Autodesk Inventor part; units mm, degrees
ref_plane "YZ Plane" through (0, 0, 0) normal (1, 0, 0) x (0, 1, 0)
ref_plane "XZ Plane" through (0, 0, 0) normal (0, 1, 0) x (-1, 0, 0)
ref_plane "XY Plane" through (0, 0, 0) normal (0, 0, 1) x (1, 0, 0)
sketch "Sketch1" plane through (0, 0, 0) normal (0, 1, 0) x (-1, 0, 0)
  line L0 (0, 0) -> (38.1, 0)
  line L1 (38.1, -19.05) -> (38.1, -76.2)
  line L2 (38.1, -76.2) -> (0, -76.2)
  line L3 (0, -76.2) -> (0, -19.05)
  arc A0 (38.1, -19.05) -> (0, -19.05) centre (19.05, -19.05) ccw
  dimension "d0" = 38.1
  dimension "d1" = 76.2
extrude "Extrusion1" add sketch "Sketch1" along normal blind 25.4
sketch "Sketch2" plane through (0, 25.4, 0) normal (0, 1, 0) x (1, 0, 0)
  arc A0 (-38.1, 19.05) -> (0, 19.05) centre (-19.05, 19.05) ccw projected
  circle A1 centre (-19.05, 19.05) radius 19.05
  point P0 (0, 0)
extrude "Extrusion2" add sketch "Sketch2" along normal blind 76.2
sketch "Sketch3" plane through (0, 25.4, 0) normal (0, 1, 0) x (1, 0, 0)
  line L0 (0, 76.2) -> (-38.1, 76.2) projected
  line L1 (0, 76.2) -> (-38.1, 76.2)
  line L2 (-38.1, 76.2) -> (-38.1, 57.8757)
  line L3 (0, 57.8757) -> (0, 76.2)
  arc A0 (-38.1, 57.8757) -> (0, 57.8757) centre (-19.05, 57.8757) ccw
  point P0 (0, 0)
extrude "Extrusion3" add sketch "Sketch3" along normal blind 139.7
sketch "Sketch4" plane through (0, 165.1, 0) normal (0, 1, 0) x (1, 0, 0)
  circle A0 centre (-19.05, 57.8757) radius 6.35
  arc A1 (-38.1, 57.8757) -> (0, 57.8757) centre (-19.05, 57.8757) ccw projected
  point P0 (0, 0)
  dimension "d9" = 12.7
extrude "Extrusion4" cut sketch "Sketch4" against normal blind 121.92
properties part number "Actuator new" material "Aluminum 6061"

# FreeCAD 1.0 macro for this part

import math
import FreeCAD as App
import Part
import Sketcher

V = App.Vector
Q = App.Units.Quantity

doc = App.newDocument("Part")
params = doc.addObject("Spreadsheet::Sheet", "Params")
for row, (alias, value) in enumerate([
    ("sketch1_radius", "0.75 in"),
    ("sketch1_height", "2.25 in"),
    ("pad1_length", "1 in"),
    ("sketch2_diameter", "1.5 in"),
    ("pad2_length", "3 in"),
    ("sketch3_radius", "0.75 in"),
    ("pad3_length", "5.5 in"),
    ("sketch4_diameter", "0.5 in"),
    ("pocket1_length", "4.8 in"),
], start=1):
    params.set(f"A{row}", alias)
    params.set(f"B{row}", "=" + value)
    params.setAlias(f"B{row}", alias)

body = doc.addObject("PartDesign::Body", "Body")

sketch1 = body.newObject("Sketcher::SketchObject", "Sketch")
sketch1.AttachmentSupport = (doc.getObject("XZ_Plane"), [""])
sketch1.MapMode = "FlatFace"
sketch1.addGeometry([
    Part.LineSegment(V(-38, -76, 0), V(-38, -19, 0)),
    Part.ArcOfCircle(Part.Circle(V(-19, -19, 0), V(0, 0, 1), 19), math.radians(0), math.radians(180)),
    Part.LineSegment(V(0, -19, 0), V(0, -76, 0)),
    Part.LineSegment(V(0, -76, 0), V(-38, -76, 0)),
], False)
sketch1.addConstraint([
    Sketcher.Constraint("Tangent", 0, 2, 1, 2),
    Sketcher.Constraint("Tangent", 1, 1, 2, 1),
    Sketcher.Constraint("Coincident", 2, 2, 3, 1),
    Sketcher.Constraint("Coincident", 3, 2, 0, 1),
    Sketcher.Constraint("Vertical", 0),
    Sketcher.Constraint("Vertical", 2),
    Sketcher.Constraint("Horizontal", 3),
    Sketcher.Constraint("PointOnObject", 1, 1, -2),
    Sketcher.Constraint("Radius", 1, Q("0.75 in")),
    Sketcher.Constraint("DistanceY", 2, 2, -1, 1, Q("3 in")),
    Sketcher.Constraint("DistanceY", 0, 1, 0, 2, Q("2.25 in")),
])
sketch1.setExpression("Constraints[8]", "Params.sketch1_radius")
sketch1.setExpression("Constraints[10]", "Params.sketch1_height")
pad1 = body.newObject("PartDesign::Pad", "Pad")
pad1.Profile = sketch1
pad1.setExpression("Length", "Params.pad1_length")
pad1.Reversed = True

sketch2 = body.newObject("Sketcher::SketchObject", "Sketch001")
sketch2.AttachmentSupport = (doc.getObject("XZ_Plane"), [""])
sketch2.MapMode = "FlatFace"
sketch2.AttachmentOffset = App.Placement(V(0, 0, -1 * 25.4), App.Rotation())
sketch2.addGeometry(Part.Circle(V(-19, -19, 0), V(0, 0, 1), 19), False)
sketch2.addConstraint([
    Sketcher.Constraint("Diameter", 0, Q("1.5 in")),
    Sketcher.Constraint("DistanceX", 0, 3, -1, 1, Q("0.75 in")),
    Sketcher.Constraint("DistanceY", 0, 3, -1, 1, Q("0.75 in")),
])
sketch2.setExpression("Constraints[0]", "Params.sketch2_diameter")
pad2 = body.newObject("PartDesign::Pad", "Pad001")
pad2.Profile = sketch2
pad2.setExpression("Length", "Params.pad2_length")
pad2.Reversed = True

sketch3 = body.newObject("Sketcher::SketchObject", "Sketch002")
sketch3.AttachmentSupport = (doc.getObject("XZ_Plane"), [""])
sketch3.MapMode = "FlatFace"
sketch3.AttachmentOffset = App.Placement(V(0, 0, -1 * 25.4), App.Rotation())
sketch3.addGeometry([
    Part.LineSegment(V(0, -58, 0), V(0, -76, 0)),
    Part.LineSegment(V(0, -76, 0), V(-38, -76, 0)),
    Part.LineSegment(V(-38, -76, 0), V(-38, -58, 0)),
    Part.ArcOfCircle(Part.Circle(V(-19, -58, 0), V(0, 0, 1), 19), math.radians(0), math.radians(180)),
], False)
sketch3.addConstraint([
    Sketcher.Constraint("Coincident", 0, 2, 1, 1),
    Sketcher.Constraint("Coincident", 1, 2, 2, 1),
    Sketcher.Constraint("Tangent", 2, 2, 3, 2),
    Sketcher.Constraint("Tangent", 3, 1, 0, 1),
    Sketcher.Constraint("Vertical", 0),
    Sketcher.Constraint("Horizontal", 1),
    Sketcher.Constraint("Vertical", 2),
    Sketcher.Constraint("PointOnObject", 0, 2, -2),
    Sketcher.Constraint("Radius", 3, Q("0.75 in")),
    Sketcher.Constraint("DistanceY", 0, 2, -1, 1, Q("3 in")),
    Sketcher.Constraint("DistanceY", 0, 2, 0, 1, 18.3243),
])
sketch3.setExpression("Constraints[8]", "Params.sketch3_radius")
pad3 = body.newObject("PartDesign::Pad", "Pad002")
pad3.Profile = sketch3
pad3.setExpression("Length", "Params.pad3_length")
pad3.Reversed = True

sketch4 = body.newObject("Sketcher::SketchObject", "Sketch003")
sketch4.AttachmentSupport = (doc.getObject("XZ_Plane"), [""])
sketch4.MapMode = "FlatFace"
sketch4.AttachmentOffset = App.Placement(V(0, 0, -6.5 * 25.4), App.Rotation())
sketch4.addGeometry(Part.Circle(V(-19, -58, 0), V(0, 0, 1), 6), False)
sketch4.addConstraint([
    Sketcher.Constraint("Diameter", 0, Q("0.5 in")),
    Sketcher.Constraint("DistanceX", 0, 3, -1, 1, Q("0.75 in")),
    Sketcher.Constraint("DistanceY", 0, 3, -1, 1, 57.8757),
])
sketch4.setExpression("Constraints[0]", "Params.sketch4_diameter")
pocket1 = body.newObject("PartDesign::Pocket", "Pocket")
pocket1.Profile = sketch4
pocket1.setExpression("Length", "Params.pocket1_length")
pocket1.Reversed = True

doc.recompute()
